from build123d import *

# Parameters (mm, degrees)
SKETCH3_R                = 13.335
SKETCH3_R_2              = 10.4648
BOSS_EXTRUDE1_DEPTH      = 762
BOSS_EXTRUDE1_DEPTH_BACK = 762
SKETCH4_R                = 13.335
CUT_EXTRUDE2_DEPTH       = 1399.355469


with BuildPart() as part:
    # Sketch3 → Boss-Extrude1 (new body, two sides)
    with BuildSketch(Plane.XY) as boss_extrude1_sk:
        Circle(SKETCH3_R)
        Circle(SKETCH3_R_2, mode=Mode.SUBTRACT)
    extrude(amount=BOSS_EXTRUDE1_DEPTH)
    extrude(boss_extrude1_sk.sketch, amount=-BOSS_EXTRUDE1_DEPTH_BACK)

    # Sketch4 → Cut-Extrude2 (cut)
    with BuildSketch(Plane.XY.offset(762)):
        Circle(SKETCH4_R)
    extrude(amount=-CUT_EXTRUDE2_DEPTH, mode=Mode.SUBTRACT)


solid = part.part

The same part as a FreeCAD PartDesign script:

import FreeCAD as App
import Part
import Sketcher

V = App.Vector
Q = App.Units.Quantity

doc = App.newDocument("Part")
body = doc.addObject("PartDesign::Body", "Body")

# Sketch on XY plane
sketch1 = body.newObject("Sketcher::SketchObject", "Sketch")
sketch1.AttachmentSupport = (doc.getObject("XY_Plane"), [""])
sketch1.MapMode = "FlatFace"
sketch1.addGeometry([
    Part.Circle(V(0, 0, 0), V(0, 0, 1), 13),
    Part.Circle(V(0, 0, 0), V(0, 0, 1), 10),
], False)
sketch1.addConstraint([
    Sketcher.Constraint("Coincident", 0, 3, -1, 1),
    Sketcher.Constraint("Coincident", 1, 3, -1, 1),
    Sketcher.Constraint("Diameter", 0, Q("1.05 in")),
    Sketcher.Constraint("Diameter", 1, Q("0.824 in")),
])
pad1 = body.newObject("PartDesign::Pad", "Pad")
pad1.Profile = sketch1
pad1.Type = "TwoLengths"
pad1.Length = Q("30 in")
pad1.Length2 = Q("30 in")

# Sketch on XY plane
sketch2 = body.newObject("Sketcher::SketchObject", "Sketch001")
sketch2.AttachmentSupport = (doc.getObject("XY_Plane"), [""])
sketch2.MapMode = "FlatFace"
sketch2.AttachmentOffset = App.Placement(V(0, 0, 30 * 25.4), App.Rotation())
sketch2.addGeometry(Part.Circle(V(0, 0, 0), V(0, 0, 1), 13), False)
sketch2.addConstraint([
    Sketcher.Constraint("Coincident", 0, 3, -1, 1),
    Sketcher.Constraint("Diameter", 0, Q("1.05 in")),
])
pocket1 = body.newObject("PartDesign::Pocket", "Pocket")
pocket1.Profile = sketch2
pocket1.Length = 1399.355469

doc.recompute()
